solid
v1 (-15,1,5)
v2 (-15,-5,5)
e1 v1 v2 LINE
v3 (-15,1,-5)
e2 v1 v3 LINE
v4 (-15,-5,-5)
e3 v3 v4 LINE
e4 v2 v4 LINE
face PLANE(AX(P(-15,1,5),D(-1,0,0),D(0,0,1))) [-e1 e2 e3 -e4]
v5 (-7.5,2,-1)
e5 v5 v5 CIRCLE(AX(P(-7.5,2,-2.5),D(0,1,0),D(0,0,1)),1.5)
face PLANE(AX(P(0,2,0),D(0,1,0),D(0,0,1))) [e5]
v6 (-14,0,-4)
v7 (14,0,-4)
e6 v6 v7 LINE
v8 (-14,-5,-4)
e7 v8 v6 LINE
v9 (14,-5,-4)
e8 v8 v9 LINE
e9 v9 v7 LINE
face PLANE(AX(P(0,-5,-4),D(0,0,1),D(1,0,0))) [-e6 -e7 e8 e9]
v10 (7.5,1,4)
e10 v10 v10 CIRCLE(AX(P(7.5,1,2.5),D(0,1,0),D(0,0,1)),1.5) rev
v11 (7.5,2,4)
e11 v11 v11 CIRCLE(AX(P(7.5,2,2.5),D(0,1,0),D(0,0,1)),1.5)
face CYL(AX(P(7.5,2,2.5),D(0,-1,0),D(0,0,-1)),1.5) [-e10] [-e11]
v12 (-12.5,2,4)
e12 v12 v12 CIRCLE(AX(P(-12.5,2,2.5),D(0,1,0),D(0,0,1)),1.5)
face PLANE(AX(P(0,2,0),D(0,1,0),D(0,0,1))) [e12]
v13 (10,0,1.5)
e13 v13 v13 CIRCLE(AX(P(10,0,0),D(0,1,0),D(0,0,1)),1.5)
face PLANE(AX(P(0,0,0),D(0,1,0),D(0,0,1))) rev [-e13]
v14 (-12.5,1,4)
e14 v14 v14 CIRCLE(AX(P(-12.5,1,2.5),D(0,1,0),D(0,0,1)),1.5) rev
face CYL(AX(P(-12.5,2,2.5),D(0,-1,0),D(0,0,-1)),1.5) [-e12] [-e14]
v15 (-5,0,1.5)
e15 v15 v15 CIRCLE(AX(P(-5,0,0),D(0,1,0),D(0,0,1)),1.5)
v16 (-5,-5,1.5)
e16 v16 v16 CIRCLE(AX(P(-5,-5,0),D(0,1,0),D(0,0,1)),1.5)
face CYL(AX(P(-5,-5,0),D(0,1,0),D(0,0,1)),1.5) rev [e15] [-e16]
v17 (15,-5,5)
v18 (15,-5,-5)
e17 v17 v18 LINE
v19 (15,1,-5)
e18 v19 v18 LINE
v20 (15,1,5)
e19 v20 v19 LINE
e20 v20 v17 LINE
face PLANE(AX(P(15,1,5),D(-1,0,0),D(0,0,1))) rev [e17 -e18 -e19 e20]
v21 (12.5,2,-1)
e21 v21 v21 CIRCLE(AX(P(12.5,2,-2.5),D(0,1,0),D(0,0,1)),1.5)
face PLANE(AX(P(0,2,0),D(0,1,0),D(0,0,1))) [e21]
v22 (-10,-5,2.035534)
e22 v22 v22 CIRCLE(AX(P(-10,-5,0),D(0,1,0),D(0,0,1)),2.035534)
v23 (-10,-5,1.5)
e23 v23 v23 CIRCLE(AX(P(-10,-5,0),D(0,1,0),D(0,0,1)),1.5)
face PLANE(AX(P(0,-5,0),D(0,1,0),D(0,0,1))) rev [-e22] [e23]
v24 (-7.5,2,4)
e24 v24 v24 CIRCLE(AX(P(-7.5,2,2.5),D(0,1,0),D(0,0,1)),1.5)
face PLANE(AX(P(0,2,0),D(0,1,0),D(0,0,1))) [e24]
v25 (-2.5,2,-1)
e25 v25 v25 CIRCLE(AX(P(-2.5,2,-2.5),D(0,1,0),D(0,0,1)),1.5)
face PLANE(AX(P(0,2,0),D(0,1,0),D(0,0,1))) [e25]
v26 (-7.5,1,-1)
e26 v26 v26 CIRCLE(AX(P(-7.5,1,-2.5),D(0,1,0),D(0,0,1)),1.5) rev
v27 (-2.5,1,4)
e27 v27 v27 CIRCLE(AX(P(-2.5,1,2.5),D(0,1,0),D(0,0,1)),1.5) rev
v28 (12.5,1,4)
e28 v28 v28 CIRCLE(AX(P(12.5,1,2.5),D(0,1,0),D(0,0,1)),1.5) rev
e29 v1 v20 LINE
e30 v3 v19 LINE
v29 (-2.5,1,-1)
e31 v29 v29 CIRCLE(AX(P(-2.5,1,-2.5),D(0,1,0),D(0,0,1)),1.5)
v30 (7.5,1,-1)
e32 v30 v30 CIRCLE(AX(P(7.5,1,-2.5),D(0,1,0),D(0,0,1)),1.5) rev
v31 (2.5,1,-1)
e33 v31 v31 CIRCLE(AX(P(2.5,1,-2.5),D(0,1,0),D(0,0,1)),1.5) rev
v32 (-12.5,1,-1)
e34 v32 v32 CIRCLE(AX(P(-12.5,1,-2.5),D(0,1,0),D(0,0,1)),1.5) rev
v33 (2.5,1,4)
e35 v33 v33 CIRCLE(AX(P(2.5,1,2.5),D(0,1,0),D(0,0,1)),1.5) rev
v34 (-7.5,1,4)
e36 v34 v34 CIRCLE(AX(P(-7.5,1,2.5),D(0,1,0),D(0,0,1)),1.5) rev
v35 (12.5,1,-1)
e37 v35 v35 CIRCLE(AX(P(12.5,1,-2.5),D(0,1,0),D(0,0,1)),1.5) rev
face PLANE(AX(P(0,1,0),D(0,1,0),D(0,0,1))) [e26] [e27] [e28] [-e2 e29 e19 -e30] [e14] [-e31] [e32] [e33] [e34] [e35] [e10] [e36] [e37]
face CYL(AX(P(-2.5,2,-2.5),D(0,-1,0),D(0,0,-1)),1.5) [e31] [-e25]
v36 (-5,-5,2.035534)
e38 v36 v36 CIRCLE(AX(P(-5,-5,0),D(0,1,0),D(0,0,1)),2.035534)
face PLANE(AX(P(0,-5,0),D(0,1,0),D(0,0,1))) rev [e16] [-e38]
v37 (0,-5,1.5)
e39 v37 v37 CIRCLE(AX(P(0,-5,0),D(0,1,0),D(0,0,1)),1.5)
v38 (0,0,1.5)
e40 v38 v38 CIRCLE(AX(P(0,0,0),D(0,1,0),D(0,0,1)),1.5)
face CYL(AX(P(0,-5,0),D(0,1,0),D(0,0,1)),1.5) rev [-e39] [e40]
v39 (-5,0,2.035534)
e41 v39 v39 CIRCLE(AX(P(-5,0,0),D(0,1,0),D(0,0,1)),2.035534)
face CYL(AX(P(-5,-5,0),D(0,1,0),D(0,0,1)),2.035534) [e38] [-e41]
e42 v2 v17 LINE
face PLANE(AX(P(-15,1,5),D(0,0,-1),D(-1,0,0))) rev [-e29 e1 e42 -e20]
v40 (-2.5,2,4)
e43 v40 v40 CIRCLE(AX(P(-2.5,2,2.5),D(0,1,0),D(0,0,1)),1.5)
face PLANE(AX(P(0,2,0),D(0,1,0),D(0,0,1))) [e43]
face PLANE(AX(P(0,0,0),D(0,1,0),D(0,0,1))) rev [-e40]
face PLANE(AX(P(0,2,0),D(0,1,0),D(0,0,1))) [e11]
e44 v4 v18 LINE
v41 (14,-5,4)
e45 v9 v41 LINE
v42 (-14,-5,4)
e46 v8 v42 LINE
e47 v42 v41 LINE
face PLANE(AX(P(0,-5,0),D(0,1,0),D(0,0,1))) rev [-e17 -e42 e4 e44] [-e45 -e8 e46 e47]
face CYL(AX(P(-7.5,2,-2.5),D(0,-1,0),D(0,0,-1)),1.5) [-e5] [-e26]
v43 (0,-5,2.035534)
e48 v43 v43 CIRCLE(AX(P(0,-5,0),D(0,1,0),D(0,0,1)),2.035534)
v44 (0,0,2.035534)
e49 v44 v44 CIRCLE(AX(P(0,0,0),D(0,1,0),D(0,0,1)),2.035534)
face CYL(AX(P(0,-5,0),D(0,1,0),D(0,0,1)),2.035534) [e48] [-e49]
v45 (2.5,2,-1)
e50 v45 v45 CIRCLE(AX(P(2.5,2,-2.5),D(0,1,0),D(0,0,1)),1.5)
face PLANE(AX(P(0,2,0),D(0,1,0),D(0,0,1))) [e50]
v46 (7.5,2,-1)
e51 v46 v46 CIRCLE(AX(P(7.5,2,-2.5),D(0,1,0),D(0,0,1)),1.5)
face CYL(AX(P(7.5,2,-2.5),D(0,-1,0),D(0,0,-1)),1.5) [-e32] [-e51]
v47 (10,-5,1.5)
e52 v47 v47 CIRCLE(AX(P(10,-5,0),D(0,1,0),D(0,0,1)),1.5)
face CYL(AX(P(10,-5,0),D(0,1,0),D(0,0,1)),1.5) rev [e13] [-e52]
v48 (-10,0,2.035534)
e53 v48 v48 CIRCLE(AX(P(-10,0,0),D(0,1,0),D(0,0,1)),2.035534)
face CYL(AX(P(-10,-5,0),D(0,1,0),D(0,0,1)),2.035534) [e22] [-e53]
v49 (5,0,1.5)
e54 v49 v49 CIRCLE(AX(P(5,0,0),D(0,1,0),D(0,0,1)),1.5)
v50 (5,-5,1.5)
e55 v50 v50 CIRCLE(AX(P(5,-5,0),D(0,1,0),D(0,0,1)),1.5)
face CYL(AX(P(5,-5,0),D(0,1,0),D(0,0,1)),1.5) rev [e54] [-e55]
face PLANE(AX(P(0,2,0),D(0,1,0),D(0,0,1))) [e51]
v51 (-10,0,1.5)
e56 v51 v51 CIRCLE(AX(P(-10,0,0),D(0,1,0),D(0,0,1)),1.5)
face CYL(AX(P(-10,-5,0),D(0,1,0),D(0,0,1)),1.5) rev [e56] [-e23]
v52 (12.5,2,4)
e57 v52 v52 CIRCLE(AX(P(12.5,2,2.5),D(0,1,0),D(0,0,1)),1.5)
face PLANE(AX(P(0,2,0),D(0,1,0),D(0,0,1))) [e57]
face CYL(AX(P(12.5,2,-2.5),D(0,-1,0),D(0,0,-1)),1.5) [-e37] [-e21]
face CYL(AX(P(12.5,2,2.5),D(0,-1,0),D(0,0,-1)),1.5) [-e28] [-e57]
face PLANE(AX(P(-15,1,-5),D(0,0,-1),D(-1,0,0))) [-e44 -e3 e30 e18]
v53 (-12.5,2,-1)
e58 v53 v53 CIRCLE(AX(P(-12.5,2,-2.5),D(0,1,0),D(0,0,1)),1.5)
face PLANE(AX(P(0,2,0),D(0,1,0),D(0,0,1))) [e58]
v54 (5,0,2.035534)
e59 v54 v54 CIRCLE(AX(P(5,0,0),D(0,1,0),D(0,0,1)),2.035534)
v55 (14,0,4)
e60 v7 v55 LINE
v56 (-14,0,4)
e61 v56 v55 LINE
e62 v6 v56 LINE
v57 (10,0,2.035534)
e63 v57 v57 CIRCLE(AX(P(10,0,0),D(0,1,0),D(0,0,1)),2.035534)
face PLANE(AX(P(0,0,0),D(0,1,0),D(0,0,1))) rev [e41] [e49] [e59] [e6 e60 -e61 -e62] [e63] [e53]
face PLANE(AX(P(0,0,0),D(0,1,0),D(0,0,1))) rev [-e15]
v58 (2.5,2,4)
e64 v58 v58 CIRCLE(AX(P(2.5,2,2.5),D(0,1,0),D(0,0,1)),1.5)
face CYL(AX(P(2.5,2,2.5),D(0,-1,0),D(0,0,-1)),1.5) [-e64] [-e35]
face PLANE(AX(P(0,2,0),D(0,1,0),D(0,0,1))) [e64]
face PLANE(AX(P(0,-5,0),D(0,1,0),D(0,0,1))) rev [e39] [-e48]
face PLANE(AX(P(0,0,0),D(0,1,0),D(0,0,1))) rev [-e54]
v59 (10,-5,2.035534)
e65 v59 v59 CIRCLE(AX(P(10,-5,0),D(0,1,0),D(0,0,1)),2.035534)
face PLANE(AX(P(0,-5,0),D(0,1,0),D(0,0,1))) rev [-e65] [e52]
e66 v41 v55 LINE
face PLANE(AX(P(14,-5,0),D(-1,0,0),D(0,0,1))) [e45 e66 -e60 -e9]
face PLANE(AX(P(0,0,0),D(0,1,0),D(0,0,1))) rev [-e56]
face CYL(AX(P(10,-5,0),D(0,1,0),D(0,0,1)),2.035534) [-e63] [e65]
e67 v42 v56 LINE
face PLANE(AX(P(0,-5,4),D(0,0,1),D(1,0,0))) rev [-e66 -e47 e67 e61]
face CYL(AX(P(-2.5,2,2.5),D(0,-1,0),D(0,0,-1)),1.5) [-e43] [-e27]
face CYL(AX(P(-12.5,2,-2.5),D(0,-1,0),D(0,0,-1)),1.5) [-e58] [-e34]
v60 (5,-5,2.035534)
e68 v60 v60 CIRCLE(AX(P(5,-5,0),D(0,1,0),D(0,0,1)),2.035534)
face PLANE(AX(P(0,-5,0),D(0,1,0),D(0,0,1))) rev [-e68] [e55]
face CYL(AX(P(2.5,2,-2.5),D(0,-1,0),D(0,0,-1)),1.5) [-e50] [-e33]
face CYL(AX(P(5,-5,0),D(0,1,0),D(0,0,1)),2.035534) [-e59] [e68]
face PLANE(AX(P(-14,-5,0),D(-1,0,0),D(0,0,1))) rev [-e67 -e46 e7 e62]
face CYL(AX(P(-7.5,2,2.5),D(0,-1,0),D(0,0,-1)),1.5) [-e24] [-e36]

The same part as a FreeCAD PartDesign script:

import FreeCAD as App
import Part
import Sketcher
Q = App.Units.Quantity


def add_polygon(sketch, points):
    """Adds a closed chain of lines whose ends are joined by coincident constraints."""
    first, n = sketch.GeometryCount, len(points)
    for a, b in zip(points, points[1:] + points[:1]):
        sketch.addGeometry(Part.LineSegment(App.Vector(*a, 0), App.Vector(*b, 0)), False)
    for i in range(n):
        sketch.addConstraint(Sketcher.Constraint("Coincident", first + i, 2, first + (i + 1) % n, 1))

doc = App.newDocument("Part")
body = doc.addObject("PartDesign::Body", "Body")

# Sketch on XZ plane
sketch1 = body.newObject("Sketcher::SketchObject", "Sketch")
sketch1.AttachmentSupport = (doc.getObject("XZ_Plane"), [""])
sketch1.MapMode = "FlatFace"
sketch1.addGeometry(Part.Circle(App.Vector(-2.5, -2.5, 0), App.Vector(0, 0, 1), 1.5), False)
sketch1.addConstraint(Sketcher.Constraint("Diameter", 0, Q("3 mm")))
sketch1.addConstraint(Sketcher.Constraint("DistanceX", 0, 3, -1, 1, Q("2.5 mm")))
sketch1.addConstraint(Sketcher.Constraint("DistanceY", 0, 3, -1, 1, Q("2.5 mm")))
pad1 = body.newObject("PartDesign::Pad", "Pad")
pad1.Profile = sketch1
pad1.Length = 2
pad1.Reversed = True
body2 = doc.addObject("PartDesign::Body", "Body001")

# Sketch on XZ plane
sketch2 = body2.newObject("Sketcher::SketchObject", "Sketch001")
sketch2.AttachmentSupport = (doc.getObject("XZ_Plane001"), [""])
sketch2.MapMode = "FlatFace"
sketch2.addGeometry(Part.Circle(App.Vector(-7.5, -2.5, 0), App.Vector(0, 0, 1), 1.5), False)
sketch2.addConstraint(Sketcher.Constraint("Diameter", 0, Q("3 mm")))
sketch2.addConstraint(Sketcher.Constraint("DistanceX", 0, 3, -1, 1, Q("7.5 mm")))
sketch2.addConstraint(Sketcher.Constraint("DistanceY", 0, 3, -1, 1, Q("2.5 mm")))
pad2 = body2.newObject("PartDesign::Pad", "Pad001")
pad2.Profile = sketch2
pad2.Length = 2
pad2.Reversed = True
body3 = doc.addObject("PartDesign::Body", "Body002")

# Sketch on XZ plane
sketch3 = body3.newObject("Sketcher::SketchObject", "Sketch002")
sketch3.AttachmentSupport = (doc.getObject("XZ_Plane002"), [""])
sketch3.MapMode = "FlatFace"
sketch3.addGeometry(Part.Circle(App.Vector(-12.5, -2.5, 0), App.Vector(0, 0, 1), 1.5), False)
sketch3.addConstraint(Sketcher.Constraint("Diameter", 0, Q("3 mm")))
sketch3.addConstraint(Sketcher.Constraint("DistanceX", 0, 3, -1, 1, Q("12.5 mm")))
sketch3.addConstraint(Sketcher.Constraint("DistanceY", 0, 3, -1, 1, Q("2.5 mm")))
pad3 = body3.newObject("PartDesign::Pad", "Pad002")
pad3.Profile = sketch3
pad3.Length = 2
pad3.Reversed = True
body4 = doc.addObject("PartDesign::Body", "Body003")

# Sketch on XZ plane
sketch4 = body4.newObject("Sketcher::SketchObject", "Sketch003")
sketch4.AttachmentSupport = (doc.getObject("XZ_Plane003"), [""])
sketch4.MapMode = "FlatFace"
sketch4.addGeometry(Part.Circle(App.Vector(-12.5, 2.5, 0), App.Vector(0, 0, 1), 1.5), False)
sketch4.addConstraint(Sketcher.Constraint("Diameter", 0, Q("3 mm")))
sketch4.addConstraint(Sketcher.Constraint("DistanceX", 0, 3, -1, 1, Q("12.5 mm")))
sketch4.addConstraint(Sketcher.Constraint("DistanceY", -1, 1, 0, 3, Q("2.5 mm")))
pad4 = body4.newObject("PartDesign::Pad", "Pad003")
pad4.Profile = sketch4
pad4.Length = 2
pad4.Reversed = True
body5 = doc.addObject("PartDesign::Body", "Body004")

# Sketch on XZ plane
sketch5 = body5.newObject("Sketcher::SketchObject", "Sketch004")
sketch5.AttachmentSupport = (doc.getObject("XZ_Plane004"), [""])
sketch5.MapMode = "FlatFace"
sketch5.addGeometry(Part.Circle(App.Vector(-7.5, 2.5, 0), App.Vector(0, 0, 1), 1.5), False)
sketch5.addConstraint(Sketcher.Constraint("Diameter", 0, Q("3 mm")))
sketch5.addConstraint(Sketcher.Constraint("DistanceX", 0, 3, -1, 1, Q("7.5 mm")))
sketch5.addConstraint(Sketcher.Constraint("DistanceY", -1, 1, 0, 3, Q("2.5 mm")))
pad5 = body5.newObject("PartDesign::Pad", "Pad004")
pad5.Profile = sketch5
pad5.Length = 2
pad5.Reversed = True
body6 = doc.addObject("PartDesign::Body", "Body005")

# Sketch on XZ plane
sketch6 = body6.newObject("Sketcher::SketchObject", "Sketch005")
sketch6.AttachmentSupport = (doc.getObject("XZ_Plane005"), [""])
sketch6.MapMode = "FlatFace"
sketch6.addGeometry(Part.Circle(App.Vector(-2.5, 2.5, 0), App.Vector(0, 0, 1), 1.5), False)
sketch6.addConstraint(Sketcher.Constraint("Diameter", 0, Q("3 mm")))
sketch6.addConstraint(Sketcher.Constraint("DistanceX", 0, 3, -1, 1, Q("2.5 mm")))
sketch6.addConstraint(Sketcher.Constraint("DistanceY", -1, 1, 0, 3, Q("2.5 mm")))
pad6 = body6.newObject("PartDesign::Pad", "Pad005")
pad6.Profile = sketch6
pad6.Length = 2
pad6.Reversed = True
body7 = doc.addObject("PartDesign::Body", "Body006")

# Sketch on XZ plane
sketch7 = body7.newObject("Sketcher::SketchObject", "Sketch006")
sketch7.AttachmentSupport = (doc.getObject("XZ_Plane006"), [""])
sketch7.MapMode = "FlatFace"
sketch7.addGeometry(Part.Circle(App.Vector(2.5, -2.5, 0), App.Vector(0, 0, 1), 1.5), False)
sketch7.addConstraint(Sketcher.Constraint("Diameter", 0, Q("3 mm")))
sketch7.addConstraint(Sketcher.Constraint("DistanceX", -1, 1, 0, 3, Q("2.5 mm")))
sketch7.addConstraint(Sketcher.Constraint("DistanceY", 0, 3, -1, 1, Q("2.5 mm")))
pad7 = body7.newObject("PartDesign::Pad", "Pad006")
pad7.Profile = sketch7
pad7.Length = 2
pad7.Reversed = True
body8 = doc.addObject("PartDesign::Body", "Body007")

# Sketch on XZ plane
sketch8 = body8.newObject("Sketcher::SketchObject", "Sketch007")
sketch8.AttachmentSupport = (doc.getObject("XZ_Plane007"), [""])
sketch8.MapMode = "FlatFace"
sketch8.addGeometry(Part.Circle(App.Vector(7.5, -2.5, 0), App.Vector(0, 0, 1), 1.5), False)
sketch8.addConstraint(Sketcher.Constraint("Diameter", 0, Q("3 mm")))
sketch8.addConstraint(Sketcher.Constraint("DistanceX", -1, 1, 0, 3, Q("7.5 mm")))
sketch8.addConstraint(Sketcher.Constraint("DistanceY", 0, 3, -1, 1, Q("2.5 mm")))
pad8 = body8.newObject("PartDesign::Pad", "Pad007")
pad8.Profile = sketch8
pad8.Length = 2
pad8.Reversed = True
body9 = doc.addObject("PartDesign::Body", "Body008")

# Sketch on XZ plane
sketch9 = body9.newObject("Sketcher::SketchObject", "Sketch008")
sketch9.AttachmentSupport = (doc.getObject("XZ_Plane008"), [""])
sketch9.MapMode = "FlatFace"
sketch9.addGeometry(Part.Circle(App.Vector(12.5, -2.5, 0), App.Vector(0, 0, 1), 1.5), False)
sketch9.addConstraint(Sketcher.Constraint("Diameter", 0, Q("3 mm")))
sketch9.addConstraint(Sketcher.Constraint("DistanceX", -1, 1, 0, 3, Q("12.5 mm")))
sketch9.addConstraint(Sketcher.Constraint("DistanceY", 0, 3, -1, 1, Q("2.5 mm")))
pad9 = body9.newObject("PartDesign::Pad", "Pad008")
pad9.Profile = sketch9
pad9.Length = 2
pad9.Reversed = True
body10 = doc.addObject("PartDesign::Body", "Body009")

# Sketch on XZ plane
sketch10 = body10.newObject("Sketcher::SketchObject", "Sketch009")
sketch10.AttachmentSupport = (doc.getObject("XZ_Plane009"), [""])
sketch10.MapMode = "FlatFace"
sketch10.addGeometry(Part.Circle(App.Vector(12.5, 2.5, 0), App.Vector(0, 0, 1), 1.5), False)
sketch10.addConstraint(Sketcher.Constraint("Diameter", 0, Q("3 mm")))
sketch10.addConstraint(Sketcher.Constraint("DistanceX", -1, 1, 0, 3, Q("12.5 mm")))
sketch10.addConstraint(Sketcher.Constraint("DistanceY", -1, 1, 0, 3, Q("2.5 mm")))
pad10 = body10.newObject("PartDesign::Pad", "Pad009")
pad10.Profile = sketch10
pad10.Length = 2
pad10.Reversed = True
body11 = doc.addObject("PartDesign::Body", "Body010")

# Sketch on XZ plane
sketch11 = body11.newObject("Sketcher::SketchObject", "Sketch010")
sketch11.AttachmentSupport = (doc.getObject("XZ_Plane010"), [""])
sketch11.MapMode = "FlatFace"
sketch11.addGeometry(Part.Circle(App.Vector(7.5, 2.5, 0), App.Vector(0, 0, 1), 1.5), False)
sketch11.addConstraint(Sketcher.Constraint("Diameter", 0, Q("3 mm")))
sketch11.addConstraint(Sketcher.Constraint("DistanceX", -1, 1, 0, 3, Q("7.5 mm")))
sketch11.addConstraint(Sketcher.Constraint("DistanceY", -1, 1, 0, 3, Q("2.5 mm")))
pad11 = body11.newObject("PartDesign::Pad", "Pad010")
pad11.Profile = sketch11
pad11.Length = 2
pad11.Reversed = True
body12 = doc.addObject("PartDesign::Body", "Body011")

# Sketch on XZ plane
sketch12 = body12.newObject("Sketcher::SketchObject", "Sketch011")
sketch12.AttachmentSupport = (doc.getObject("XZ_Plane011"), [""])
sketch12.MapMode = "FlatFace"
sketch12.addGeometry(Part.Circle(App.Vector(2.5, 2.5, 0), App.Vector(0, 0, 1), 1.5), False)
sketch12.addConstraint(Sketcher.Constraint("Diameter", 0, Q("3 mm")))
sketch12.addConstraint(Sketcher.Constraint("DistanceX", -1, 1, 0, 3, Q("2.5 mm")))
sketch12.addConstraint(Sketcher.Constraint("DistanceY", -1, 1, 0, 3, Q("2.5 mm")))
pad12 = body12.newObject("PartDesign::Pad", "Pad011")
pad12.Profile = sketch12
pad12.Length = 2
pad12.Reversed = True
body.AllowCompound = True
doc.recompute()

boolean = body.newObject("PartDesign::Boolean", "Boolean")
boolean.Type = "Fuse"
boolean.addObjects([body2])
doc.recompute()

boolean2 = body.newObject("PartDesign::Boolean", "Boolean001")
boolean2.Type = "Fuse"
boolean2.addObjects([body3])
doc.recompute()

boolean3 = body.newObject("PartDesign::Boolean", "Boolean002")
boolean3.Type = "Fuse"
boolean3.addObjects([body4])
doc.recompute()

boolean4 = body.newObject("PartDesign::Boolean", "Boolean003")
boolean4.Type = "Fuse"
boolean4.addObjects([body5])
doc.recompute()

boolean5 = body.newObject("PartDesign::Boolean", "Boolean004")
boolean5.Type = "Fuse"
boolean5.addObjects([body6])
doc.recompute()

boolean6 = body.newObject("PartDesign::Boolean", "Boolean005")
boolean6.Type = "Fuse"
boolean6.addObjects([body7])
doc.recompute()

boolean7 = body.newObject("PartDesign::Boolean", "Boolean006")
boolean7.Type = "Fuse"
boolean7.addObjects([body8])
doc.recompute()

boolean8 = body.newObject("PartDesign::Boolean", "Boolean007")
boolean8.Type = "Fuse"
boolean8.addObjects([body9])
doc.recompute()

boolean9 = body.newObject("PartDesign::Boolean", "Boolean008")
boolean9.Type = "Fuse"
boolean9.addObjects([body10])
doc.recompute()

boolean10 = body.newObject("PartDesign::Boolean", "Boolean009")
boolean10.Type = "Fuse"
boolean10.addObjects([body11])
doc.recompute()

boolean11 = body.newObject("PartDesign::Boolean", "Boolean010")
boolean11.Type = "Fuse"
boolean11.addObjects([body12])

# Sketch on XZ plane
sketch13 = body.newObject("Sketcher::SketchObject", "Sketch012")
sketch13.AttachmentSupport = (doc.getObject("XZ_Plane"), [""])
sketch13.MapMode = "FlatFace"
add_polygon(sketch13, [(-15, -5), (-15, 5), (15, 5), (15, -5)])  # lines 0-3
sketch13.addConstraint(Sketcher.Constraint("Vertical", 0))
sketch13.addConstraint(Sketcher.Constraint("Horizontal", 1))
sketch13.addConstraint(Sketcher.Constraint("Vertical", 2))
sketch13.addConstraint(Sketcher.Constraint("Horizontal", 3))
sketch13.addConstraint(Sketcher.Constraint("Symmetric", 0, 2, 2, 2, -1, 1))
sketch13.addConstraint(Sketcher.Constraint("DistanceX", 1, 1, 1, 2, Q("30 mm")))
sketch13.addConstraint(Sketcher.Constraint("DistanceY", 0, 1, 0, 2, Q("10 mm")))
pad13 = body.newObject("PartDesign::Pad", "Pad012")
pad13.Profile = sketch13
pad13.Length = 1
pad13.Reversed = True

# Sketch on XZ plane
sketch14 = body.newObject("Sketcher::SketchObject", "Sketch013")
sketch14.AttachmentSupport = (doc.getObject("XZ_Plane"), [""])
sketch14.MapMode = "FlatFace"
add_polygon(sketch14, [(-15, -5), (-15, 5), (15, 5), (15, -5)])  # lines 0-3
add_polygon(sketch14, [(14, 4), (-14, 4), (-14, -4), (14, -4)])  # lines 4-7
sketch14.addGeometry(Part.Circle(App.Vector(-10, 0, 0), App.Vector(0, 0, 1), 2), False)  # 8
sketch14.addGeometry(Part.Circle(App.Vector(-10, 0, 0), App.Vector(0, 0, 1), 1.5), False)  # 9
sketch14.addGeometry(Part.Circle(App.Vector(-5, 0, 0), App.Vector(0, 0, 1), 2), False)  # 10
sketch14.addGeometry(Part.Circle(App.Vector(-5, 0, 0), App.Vector(0, 0, 1), 1.5), False)  # 11
sketch14.addGeometry(Part.Circle(App.Vector(0, 0, 0), App.Vector(0, 0, 1), 2), False)  # 12
sketch14.addGeometry(Part.Circle(App.Vector(0, 0, 0), App.Vector(0, 0, 1), 1.5), False)  # 13
sketch14.addGeometry(Part.Circle(App.Vector(5, 0, 0), App.Vector(0, 0, 1), 2), False)  # 14
sketch14.addGeometry(Part.Circle(App.Vector(5, 0, 0), App.Vector(0, 0, 1), 1.5), False)  # 15
sketch14.addGeometry(Part.Circle(App.Vector(10, 0, 0), App.Vector(0, 0, 1), 2), False)  # 16
sketch14.addGeometry(Part.Circle(App.Vector(10, 0, 0), App.Vector(0, 0, 1), 1.5), False)  # 17
sketch14.addConstraint(Sketcher.Constraint("Vertical", 0))
sketch14.addConstraint(Sketcher.Constraint("Horizontal", 1))
sketch14.addConstraint(Sketcher.Constraint("Vertical", 2))
sketch14.addConstraint(Sketcher.Constraint("Horizontal", 3))
sketch14.addConstraint(Sketcher.Constraint("Horizontal", 4))
sketch14.addConstraint(Sketcher.Constraint("Vertical", 5))
sketch14.addConstraint(Sketcher.Constraint("Horizontal", 6))
sketch14.addConstraint(Sketcher.Constraint("Vertical", 7))
sketch14.addConstraint(Sketcher.Constraint("Coincident", 12, 3, -1, 1))
sketch14.addConstraint(Sketcher.Constraint("Coincident", 13, 3, -1, 1))
sketch14.addConstraint(Sketcher.Constraint("Coincident", 9, 3, 8, 3))
sketch14.addConstraint(Sketcher.Constraint("Coincident", 11, 3, 10, 3))
sketch14.addConstraint(Sketcher.Constraint("Coincident", 15, 3, 14, 3))
sketch14.addConstraint(Sketcher.Constraint("Coincident", 17, 3, 16, 3))
sketch14.addConstraint(Sketcher.Constraint("Equal", 8, 10))
sketch14.addConstraint(Sketcher.Constraint("Equal", 9, 11))
sketch14.addConstraint(Sketcher.Constraint("Equal", 10, 12))
sketch14.addConstraint(Sketcher.Constraint("Equal", 11, 13))
sketch14.addConstraint(Sketcher.Constraint("Equal", 12, 14))
sketch14.addConstraint(Sketcher.Constraint("Equal", 13, 15))
sketch14.addConstraint(Sketcher.Constraint("Equal", 14, 16))
sketch14.addConstraint(Sketcher.Constraint("Equal", 15, 17))
sketch14.addConstraint(Sketcher.Constraint("Symmetric", 10, 3, 14, 3, -1, 1))
sketch14.addConstraint(Sketcher.Constraint("Symmetric", 8, 3, 16, 3, -1, 1))
sketch14.addConstraint(Sketcher.Constraint("Symmetric", 0, 2, 2, 2, -1, 1))
sketch14.addConstraint(Sketcher.Constraint("Symmetric", 4, 2, 6, 2, -1, 1))
sketch14.addConstraint(Sketcher.Constraint("PointOnObject", 8, 3, -1))
sketch14.addConstraint(Sketcher.Constraint("PointOnObject", 10, 3, -1))
sketch14.addConstraint(Sketcher.Constraint("Diameter", 9, Q("3 mm")))
sketch14.addConstraint(Sketcher.Constraint("DistanceX", 1, 1, 1, 2, Q("30 mm")))
sketch14.addConstraint(Sketcher.Constraint("DistanceX", 4, 2, 4, 1, Q("28 mm")))
sketch14.addConstraint(Sketcher.Constraint("DistanceY", 0, 1, 0, 2, Q("10 mm")))
sketch14.addConstraint(Sketcher.Constraint("DistanceY", 5, 2, 5, 1, Q("8 mm")))
sketch14.addConstraint(Sketcher.Constraint("DistanceX", 8, 3, -1, 1, Q("10 mm")))
sketch14.addConstraint(Sketcher.Constraint("DistanceX", 10, 3, -1, 1, Q("5 mm")))
sketch14.addConstraint(Sketcher.Constraint("Diameter", 8, Q("4.071068 mm")))
pad14 = body.newObject("PartDesign::Pad", "Pad013")
pad14.Profile = sketch14
pad14.Length = 5

doc.recompute()
